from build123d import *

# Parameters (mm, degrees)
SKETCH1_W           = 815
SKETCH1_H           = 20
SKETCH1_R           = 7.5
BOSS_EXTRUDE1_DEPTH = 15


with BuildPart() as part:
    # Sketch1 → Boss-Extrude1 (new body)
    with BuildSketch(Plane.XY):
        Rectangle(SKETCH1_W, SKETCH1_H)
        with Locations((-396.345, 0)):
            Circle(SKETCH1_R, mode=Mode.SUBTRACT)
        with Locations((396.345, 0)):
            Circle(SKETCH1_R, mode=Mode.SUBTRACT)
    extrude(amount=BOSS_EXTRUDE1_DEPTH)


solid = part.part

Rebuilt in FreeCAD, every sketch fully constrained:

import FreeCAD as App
import Part
import Sketcher

V = App.Vector


def add_polygon(sketch, points):
    """Adds a closed chain of lines whose ends are joined by coincident constraints."""
    first, n = sketch.GeometryCount, len(points)
    for a, b in zip(points, points[1:] + points[:1]):
        sketch.addGeometry(Part.LineSegment(App.Vector(*a, 0), App.Vector(*b, 0)), False)
    for i in range(n):
        sketch.addConstraint(Sketcher.Constraint("Coincident", first + i, 2, first + (i + 1) % n, 1))

doc = App.newDocument("Part")
body = doc.addObject("PartDesign::Body", "Body")

# Sketch on XY plane
sketch1 = body.newObject("Sketcher::SketchObject", "Sketch")
sketch1.AttachmentSupport = (doc.getObject("XY_Plane"), [""])
sketch1.MapMode = "FlatFace"
add_polygon(sketch1, [(-407.5, 10), (-407.5, -10), (407.5, -10), (407.5, 10)])  # lines 0-3
sketch1.addGeometry(Part.Circle(V(-396.345, 0, 0), V(0, 0, 1), 7.5), False)  # 4
sketch1.addGeometry(Part.Circle(V(396.345, 0, 0), V(0, 0, 1), 7.5), False)  # 5
sketch1.addConstraint([
    Sketcher.Constraint("Vertical", 0),
    Sketcher.Constraint("Horizontal", 1),
    Sketcher.Constraint("Vertical", 2),
    Sketcher.Constraint("Horizontal", 3),
    Sketcher.Constraint("Equal", 4, 5),
    Sketcher.Constraint("Symmetric", 4, 3, 5, 3, -1, 1),
    Sketcher.Constraint("Symmetric", 0, 2, 2, 2, -1, 1),
    Sketcher.Constraint("PointOnObject", 4, 3, -1),
    Sketcher.Constraint("Diameter", 4, 15.0),
    Sketcher.Constraint("DistanceX", 1, 1, 1, 2, 815.0),
    Sketcher.Constraint("DistanceY", 0, 2, 0, 1, 20.0),
    Sketcher.Constraint("DistanceX", 4, 3, 5, 3, 792.69),
])
pad1 = body.newObject("PartDesign::Pad", "Pad")
pad1.Profile = sketch1
pad1.Length = 15

doc.recompute()
